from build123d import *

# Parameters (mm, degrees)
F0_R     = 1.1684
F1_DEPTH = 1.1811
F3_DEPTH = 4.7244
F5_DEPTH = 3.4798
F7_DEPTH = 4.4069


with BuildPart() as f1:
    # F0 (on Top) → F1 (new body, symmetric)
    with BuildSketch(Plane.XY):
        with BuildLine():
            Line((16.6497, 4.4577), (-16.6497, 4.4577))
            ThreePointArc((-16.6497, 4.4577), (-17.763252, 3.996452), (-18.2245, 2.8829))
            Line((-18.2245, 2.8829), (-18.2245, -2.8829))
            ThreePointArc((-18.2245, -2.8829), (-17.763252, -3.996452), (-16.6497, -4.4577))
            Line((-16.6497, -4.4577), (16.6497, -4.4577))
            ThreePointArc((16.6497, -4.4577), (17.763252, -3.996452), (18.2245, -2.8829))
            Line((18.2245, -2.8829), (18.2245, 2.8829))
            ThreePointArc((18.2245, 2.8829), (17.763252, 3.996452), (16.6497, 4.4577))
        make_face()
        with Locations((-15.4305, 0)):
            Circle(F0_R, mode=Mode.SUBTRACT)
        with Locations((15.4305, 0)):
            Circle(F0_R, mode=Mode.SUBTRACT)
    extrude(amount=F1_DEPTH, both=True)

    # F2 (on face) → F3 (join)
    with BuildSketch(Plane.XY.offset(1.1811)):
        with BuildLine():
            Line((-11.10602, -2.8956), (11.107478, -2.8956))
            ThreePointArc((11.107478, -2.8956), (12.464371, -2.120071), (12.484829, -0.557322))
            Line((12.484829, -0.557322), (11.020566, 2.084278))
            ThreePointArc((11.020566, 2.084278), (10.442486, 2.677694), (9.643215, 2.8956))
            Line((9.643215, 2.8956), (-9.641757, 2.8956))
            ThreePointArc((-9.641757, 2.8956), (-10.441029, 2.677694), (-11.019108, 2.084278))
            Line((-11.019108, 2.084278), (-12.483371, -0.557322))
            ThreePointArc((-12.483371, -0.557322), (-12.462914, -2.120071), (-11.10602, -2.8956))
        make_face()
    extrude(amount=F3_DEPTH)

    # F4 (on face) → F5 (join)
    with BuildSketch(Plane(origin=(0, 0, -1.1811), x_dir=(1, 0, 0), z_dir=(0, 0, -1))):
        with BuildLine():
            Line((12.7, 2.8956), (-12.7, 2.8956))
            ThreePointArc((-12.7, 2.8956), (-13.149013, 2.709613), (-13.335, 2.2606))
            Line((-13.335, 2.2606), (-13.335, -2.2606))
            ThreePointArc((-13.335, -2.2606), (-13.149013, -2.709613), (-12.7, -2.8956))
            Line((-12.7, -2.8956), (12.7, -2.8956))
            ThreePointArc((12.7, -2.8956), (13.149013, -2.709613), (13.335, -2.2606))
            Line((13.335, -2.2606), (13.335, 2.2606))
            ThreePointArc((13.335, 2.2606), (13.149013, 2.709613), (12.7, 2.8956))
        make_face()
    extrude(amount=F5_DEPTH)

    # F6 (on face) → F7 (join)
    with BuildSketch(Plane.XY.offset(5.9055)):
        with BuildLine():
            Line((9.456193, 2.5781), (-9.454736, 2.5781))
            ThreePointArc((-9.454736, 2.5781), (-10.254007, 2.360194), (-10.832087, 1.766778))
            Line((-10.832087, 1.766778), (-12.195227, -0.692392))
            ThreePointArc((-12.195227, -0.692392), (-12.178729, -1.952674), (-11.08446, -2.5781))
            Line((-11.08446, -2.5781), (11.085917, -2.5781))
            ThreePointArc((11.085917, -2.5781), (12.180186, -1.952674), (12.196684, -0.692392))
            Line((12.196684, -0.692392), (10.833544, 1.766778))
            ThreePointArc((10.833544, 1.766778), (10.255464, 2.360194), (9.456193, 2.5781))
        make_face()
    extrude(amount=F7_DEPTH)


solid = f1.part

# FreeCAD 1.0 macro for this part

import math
import FreeCAD as App
import Part
import Sketcher
Q = App.Units.Quantity

doc = App.newDocument("Part")
body = doc.addObject("PartDesign::Body", "Body")

# Sketch on XY plane
sketch1 = doc.addObject("Sketcher::SketchObject", "Sketch")
body.addObject(sketch1)
sketch1.AttachmentSupport = (doc.XY_Plane, [""])
sketch1.MapMode = "FlatFace"
sketch1.addGeometry([
    Part.LineSegment(App.Vector(16.6497, 4.4577, 0), App.Vector(-16.6497, 4.4577, 0)),  # 0
    Part.ArcOfCircle(Part.Circle(App.Vector(-16.649701, 2.882901, 0), App.Vector(0, 0, 1), 1.574799), math.radians(89.99997), math.radians(180.00003)),  # 1
    Part.LineSegment(App.Vector(-18.2245, 2.8829, 0), App.Vector(-18.2245, -2.8829, 0)),  # 2
    Part.ArcOfCircle(Part.Circle(App.Vector(-16.649701, -2.882901, 0), App.Vector(0, 0, 1), 1.574799), math.radians(179.99997), math.radians(270.00003)),  # 3
    Part.LineSegment(App.Vector(-16.6497, -4.4577, 0), App.Vector(16.6497, -4.4577, 0)),  # 4
    Part.ArcOfCircle(Part.Circle(App.Vector(16.649701, -2.882901, 0), App.Vector(0, 0, 1), 1.574799), math.radians(-90.00003), math.radians(0.00003)),  # 5
    Part.LineSegment(App.Vector(18.2245, -2.8829, 0), App.Vector(18.2245, 2.8829, 0)),  # 6
    Part.ArcOfCircle(Part.Circle(App.Vector(16.649701, 2.882901, 0), App.Vector(0, 0, 1), 1.574799), math.radians(-0.00003), math.radians(90.00003)),  # 7
    Part.Circle(App.Vector(-15.4305, 0, 0), App.Vector(0, 0, 1), 1.1684),  # 8
    Part.Circle(App.Vector(15.4305, 0, 0), App.Vector(0, 0, 1), 1.1684),  # 9
], False)
sketch1.addConstraint([
    Sketcher.Constraint("Tangent", 0, 2, 1, 1),
    Sketcher.Constraint("Tangent", 1, 2, 2, 1),
    Sketcher.Constraint("Tangent", 2, 2, 3, 1),
    Sketcher.Constraint("Tangent", 3, 2, 4, 1),
    Sketcher.Constraint("Tangent", 4, 2, 5, 1),
    Sketcher.Constraint("Tangent", 5, 2, 6, 1),
    Sketcher.Constraint("Tangent", 6, 2, 7, 1),
    Sketcher.Constraint("Tangent", 7, 2, 0, 1),
    Sketcher.Constraint("Horizontal", 0),
    Sketcher.Constraint("Vertical", 2),
    Sketcher.Constraint("Horizontal", 4),
    Sketcher.Constraint("Vertical", 6),
    Sketcher.Constraint("Equal", 1, 3),
    Sketcher.Constraint("Equal", 3, 5),
    Sketcher.Constraint("Equal", 5, 7),
    Sketcher.Constraint("Equal", 8, 9),
    Sketcher.Constraint("Symmetric", 1, 3, 5, 3, -1, 1),
    Sketcher.Constraint("Symmetric", 8, 3, 9, 3, -1, 1),
    Sketcher.Constraint("PointOnObject", 8, 3, -1),
    Sketcher.Constraint("Diameter", 8, Q("0.092 in")),
    Sketcher.Constraint("Radius", 1, Q("0.062 in")),
    Sketcher.Constraint("DistanceX", 0, 2, 0, 1, Q("1.311 in")),
    Sketcher.Constraint("DistanceY", 2, 2, 2, 1, Q("0.227 in")),
    Sketcher.Constraint("DistanceX", 1, 2, 8, 3, Q("0.11 in")),
])
pad1 = doc.addObject("PartDesign::Pad", "Pad")
body.addObject(pad1)
pad1.Profile = sketch1
pad1.Length = Q("0.093 in")
pad1.Midplane = True

# Sketch on XY plane
sketch2 = doc.addObject("Sketcher::SketchObject", "Sketch001")
body.addObject(sketch2)
sketch2.AttachmentSupport = (doc.XY_Plane, [""])
sketch2.MapMode = "FlatFace"
sketch2.AttachmentOffset = App.Placement(App.Vector(0, 0, 0.0465 * 25.4), App.Rotation())
sketch2.addGeometry([
    Part.LineSegment(App.Vector(-11.10602, -2.8956, 0), App.Vector(11.107478, -2.8956, 0)),  # 0
    Part.ArcOfCircle(Part.Circle(App.Vector(11.107477, -1.320799, 0), App.Vector(0, 0, 1), 1.574801), math.radians(-89.999958), math.radians(28.999958)),  # 1
    Part.LineSegment(App.Vector(12.484829, -0.557322, 0), App.Vector(11.020566, 2.084278, 0)),  # 2
    Part.ArcOfCircle(Part.Circle(App.Vector(9.643216, 1.320802, 0), App.Vector(0, 0, 1), 1.574798), math.radians(28.999959), math.radians(90.000025)),  # 3
    Part.LineSegment(App.Vector(9.643215, 2.8956, 0), App.Vector(-9.641757, 2.8956, 0)),  # 4
    Part.ArcOfCircle(Part.Circle(App.Vector(-9.64176, 1.320805, 0), App.Vector(0, 0, 1), 1.574795), math.radians(89.999908), math.radians(151.000108)),  # 5
    Part.LineSegment(App.Vector(-11.019108, 2.084278, 0), App.Vector(-12.483371, -0.557322, 0)),  # 6
    Part.ArcOfCircle(Part.Circle(App.Vector(-11.10602, -1.3208, 0), App.Vector(0, 0, 1), 1.5748), math.radians(150.999987), math.radians(270.000013)),  # 7
], False)
sketch2.addConstraint([
    Sketcher.Constraint("Tangent", 0, 2, 1, 1),
    Sketcher.Constraint("Tangent", 1, 2, 2, 1),
    Sketcher.Constraint("Tangent", 2, 2, 3, 1),
    Sketcher.Constraint("Tangent", 3, 2, 4, 1),
    Sketcher.Constraint("Tangent", 4, 2, 5, 1),
    Sketcher.Constraint("Tangent", 5, 2, 6, 1),
    Sketcher.Constraint("Tangent", 6, 2, 7, 1),
    Sketcher.Constraint("Tangent", 7, 2, 0, 1),
    Sketcher.Constraint("Horizontal", 0),
    Sketcher.Constraint("Horizontal", 4),
    Sketcher.Constraint("Equal", 3, 7),
    Sketcher.Constraint("Horizontal", 1, 3, 7, 3),
    Sketcher.Constraint("Horizontal", 2, 2, 5, 2),
    Sketcher.Constraint("Horizontal", 1, 2, 6, 2),
    Sketcher.Constraint("Angle", 2, Q("119.000003 deg")),
    Sketcher.Constraint("Radius", 1, Q("0.062 in")),
    Sketcher.Constraint("DistanceY", 1, 3, -1, 1, Q("0.052 in")),
    Sketcher.Constraint("DistanceY", -1, 1, 3, 3, Q("0.0520001 in")),
    Sketcher.Constraint("DistanceX", 0, 1, 0, 2, 22.213498),
    Sketcher.Constraint("DistanceX", 5, 3, -1, 1, 9.64176),
])
pad2 = doc.addObject("PartDesign::Pad", "Pad001")
body.addObject(pad2)
pad2.Profile = sketch2
pad2.Length = Q("0.186 in")

# Sketch on XY plane
sketch3 = doc.addObject("Sketcher::SketchObject", "Sketch002")
body.addObject(sketch3)
sketch3.AttachmentSupport = (doc.XY_Plane, [""])
sketch3.MapMode = "FlatFace"
sketch3.AttachmentOffset = App.Placement(App.Vector(0, 0, -0.0465 * 25.4), App.Rotation())
sketch3.addGeometry([
    Part.LineSegment(App.Vector(12.7, -2.8956, 0), App.Vector(-12.7, -2.8956, 0)),  # 0
    Part.ArcOfCircle(Part.Circle(App.Vector(-12.700001, -2.260601, 0), App.Vector(0, 0, 1), 0.634999), math.radians(179.99994), math.radians(270.00006)),  # 1
    Part.LineSegment(App.Vector(-13.335, -2.2606, 0), App.Vector(-13.335, 2.2606, 0)),  # 2
    Part.ArcOfCircle(Part.Circle(App.Vector(-12.700001, 2.260601, 0), App.Vector(0, 0, 1), 0.634999), math.radians(89.99994), math.radians(180.00006)),  # 3
    Part.LineSegment(App.Vector(-12.7, 2.8956, 0), App.Vector(12.7, 2.8956, 0)),  # 4
    Part.ArcOfCircle(Part.Circle(App.Vector(12.700001, 2.260601, 0), App.Vector(0, 0, 1), 0.634999), math.radians(-0.00006), math.radians(90.00006)),  # 5
    Part.LineSegment(App.Vector(13.335, 2.2606, 0), App.Vector(13.335, -2.2606, 0)),  # 6
    Part.ArcOfCircle(Part.Circle(App.Vector(12.700001, -2.260601, 0), App.Vector(0, 0, 1), 0.634999), math.radians(-90.00006), math.radians(0.00006)),  # 7
], False)
sketch3.addConstraint([
    Sketcher.Constraint("Tangent", 0, 2, 1, 2),
    Sketcher.Constraint("Tangent", 1, 1, 2, 1),
    Sketcher.Constraint("Tangent", 2, 2, 3, 2),
    Sketcher.Constraint("Tangent", 3, 1, 4, 1),
    Sketcher.Constraint("Tangent", 4, 2, 5, 2),
    Sketcher.Constraint("Tangent", 5, 1, 6, 1),
    Sketcher.Constraint("Tangent", 6, 2, 7, 2),
    Sketcher.Constraint("Tangent", 7, 1, 0, 1),
    Sketcher.Constraint("Horizontal", 0),
    Sketcher.Constraint("Vertical", 2),
    Sketcher.Constraint("Horizontal", 4),
    Sketcher.Constraint("Vertical", 6),
    Sketcher.Constraint("Equal", 1, 3),
    Sketcher.Constraint("Equal", 3, 5),
    Sketcher.Constraint("Equal", 5, 7),
    Sketcher.Constraint("Symmetric", 1, 3, 5, 3, -1, 1),
    Sketcher.Constraint("DistanceX", 0, 2, 0, 1, Q("1 in")),
    Sketcher.Constraint("Radius", 1, Q("0.025 in")),
    Sketcher.Constraint("DistanceY", 2, 1, 2, 2, Q("0.178 in")),
])
pad3 = doc.addObject("PartDesign::Pad", "Pad002")
body.addObject(pad3)
pad3.Profile = sketch3
pad3.Length = Q("0.137 in")
pad3.Reversed = True

# Sketch on XY plane
sketch4 = doc.addObject("Sketcher::SketchObject", "Sketch003")
body.addObject(sketch4)
sketch4.AttachmentSupport = (doc.XY_Plane, [""])
sketch4.MapMode = "FlatFace"
sketch4.AttachmentOffset = App.Placement(App.Vector(0, 0, 0.2325 * 25.4), App.Rotation())
sketch4.addGeometry([
    Part.LineSegment(App.Vector(9.456193, 2.5781, 0), App.Vector(-9.454736, 2.5781, 0)),  # 0
    Part.ArcOfCircle(Part.Circle(App.Vector(-9.454737, 1.003302, 0), App.Vector(0, 0, 1), 1.574798), math.radians(89.999975), math.radians(151.000041)),  # 1
    Part.LineSegment(App.Vector(-10.832087, 1.766778, 0), App.Vector(-12.195227, -0.692392, 0)),  # 2
    Part.ArcOfCircle(Part.Circle(App.Vector(-11.08446, -1.3081, 0), App.Vector(0, 0, 1), 1.27), math.radians(150.999992), math.radians(270.000012)),  # 3
    Part.LineSegment(App.Vector(-11.08446, -2.5781, 0), App.Vector(11.085917, -2.5781, 0)),  # 4
    Part.ArcOfCircle(Part.Circle(App.Vector(11.085917, -1.3081, 0), App.Vector(0, 0, 1), 1.27), math.radians(-90.000012), math.radians(29.000008)),  # 5
    Part.LineSegment(App.Vector(12.196684, -0.692392, 0), App.Vector(10.833544, 1.766778, 0)),  # 6
    Part.ArcOfCircle(Part.Circle(App.Vector(9.456194, 1.003302, 0), App.Vector(0, 0, 1), 1.574798), math.radians(28.999959), math.radians(90.000025)),  # 7
], False)
sketch4.addConstraint([
    Sketcher.Constraint("Tangent", 0, 2, 1, 1),
    Sketcher.Constraint("Tangent", 1, 2, 2, 1),
    Sketcher.Constraint("Tangent", 2, 2, 3, 1),
    Sketcher.Constraint("Tangent", 3, 2, 4, 1),
    Sketcher.Constraint("Tangent", 4, 2, 5, 1),
    Sketcher.Constraint("Tangent", 5, 2, 6, 1),
    Sketcher.Constraint("Tangent", 6, 2, 7, 1),
    Sketcher.Constraint("Tangent", 7, 2, 0, 1),
    Sketcher.Constraint("Horizontal", 0),
    Sketcher.Constraint("Horizontal", 4),
    Sketcher.Constraint("Equal", 3, 5),
    Sketcher.Constraint("Equal", 1, 7),
    Sketcher.Constraint("Horizontal", 2, 2, 5, 2),
    Sketcher.Constraint("Radius", 3, Q("0.05 in")),
    Sketcher.Constraint("Angle", 2, Q("-118.999997 deg")),
    Sketcher.Constraint("Radius", 1, Q("0.0619999 in")),
    Sketcher.Constraint("DistanceY", 3, 3, 1, 3, Q("0.0910001 in")),
    Sketcher.Constraint("DistanceY", -1, 1, 1, 3, Q("0.0395001 in")),
    Sketcher.Constraint("DistanceX", 0, 2, 0, 1, 18.910929),
    Sketcher.Constraint("DistanceX", 3, 3, -1, 1, 11.08446),
])
pad4 = doc.addObject("PartDesign::Pad", "Pad003")
body.addObject(pad4)
pad4.Profile = sketch4
pad4.Length = Q("0.1735 in")

doc.recompute()
